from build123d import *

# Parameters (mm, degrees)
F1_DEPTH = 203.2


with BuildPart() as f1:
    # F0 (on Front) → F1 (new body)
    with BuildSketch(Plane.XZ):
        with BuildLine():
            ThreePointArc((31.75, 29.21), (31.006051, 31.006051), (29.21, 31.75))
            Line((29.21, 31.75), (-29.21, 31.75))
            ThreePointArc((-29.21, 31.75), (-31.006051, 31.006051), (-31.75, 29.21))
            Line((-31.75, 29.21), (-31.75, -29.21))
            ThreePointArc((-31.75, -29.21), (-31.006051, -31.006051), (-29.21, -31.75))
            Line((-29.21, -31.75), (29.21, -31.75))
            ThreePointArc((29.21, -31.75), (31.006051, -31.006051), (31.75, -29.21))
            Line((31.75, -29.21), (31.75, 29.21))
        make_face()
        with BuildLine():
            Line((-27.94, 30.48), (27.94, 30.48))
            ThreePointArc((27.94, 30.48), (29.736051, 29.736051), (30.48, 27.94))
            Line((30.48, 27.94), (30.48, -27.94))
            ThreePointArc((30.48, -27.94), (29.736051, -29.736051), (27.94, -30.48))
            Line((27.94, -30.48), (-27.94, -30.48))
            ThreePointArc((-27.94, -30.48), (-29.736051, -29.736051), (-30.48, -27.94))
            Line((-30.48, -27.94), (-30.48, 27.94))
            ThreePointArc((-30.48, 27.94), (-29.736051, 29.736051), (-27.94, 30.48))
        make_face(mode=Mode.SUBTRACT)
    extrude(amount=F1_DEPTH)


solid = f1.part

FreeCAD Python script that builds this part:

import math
import FreeCAD as App
import Part
import Sketcher
from FreeCAD import Vector
Q = App.Units.Quantity

doc = App.newDocument("Part")
params = doc.addObject("Spreadsheet::Sheet", "Params")
for row, (alias, value) in enumerate([
    ("sketch1_radius", "0.1 in"),
    ("sketch1_width", "2.3 in"),
    ("sketch1_width2", "2.2 in"),
    ("pad1_length", "8 in"),
], start=1):
    params.set(f"A{row}", alias)
    params.set(f"B{row}", "=" + value)
    params.setAlias(f"B{row}", alias)

body = doc.addObject("PartDesign::Body", "Body")

# Sketch on XZ plane
sketch1 = body.newObject("Sketcher::SketchObject", "Sketch")
sketch1.AttachmentSupport = (doc.getObject("XZ_Plane"), [""])
sketch1.MapMode = "FlatFace"
sketch1.addGeometry([
    Part.ArcOfCircle(Part.Circle(Vector(29.209999, 29.209999, 0), Vector(0, 0, 1), 2.540001), math.radians(0.000017), math.radians(89.999983)),  # 0
    Part.LineSegment(Vector(29.21, 31.75, 0), Vector(-29.21, 31.75, 0)),  # 1
    Part.ArcOfCircle(Part.Circle(Vector(-29.209999, 29.209999, 0), Vector(0, 0, 1), 2.540001), math.radians(90.000017), math.radians(179.999983)),  # 2
    Part.LineSegment(Vector(-31.75, 29.21, 0), Vector(-31.75, -29.21, 0)),  # 3
    Part.ArcOfCircle(Part.Circle(Vector(-29.209999, -29.209999, 0), Vector(0, 0, 1), 2.540001), math.radians(-179.999983), math.radians(-90.000017)),  # 4
    Part.LineSegment(Vector(-29.21, -31.75, 0), Vector(29.21, -31.75, 0)),  # 5
    Part.ArcOfCircle(Part.Circle(Vector(29.209999, -29.209999, 0), Vector(0, 0, 1), 2.540001), math.radians(-89.999983), math.radians(-0.000017)),  # 6
    Part.LineSegment(Vector(31.75, -29.21, 0), Vector(31.75, 29.21, 0)),  # 7
    Part.ArcOfCircle(Part.Circle(Vector(-27.939999, 27.939999, 0), Vector(0, 0, 1), 2.540001), math.radians(90.000017), math.radians(179.999983)),  # 8
    Part.LineSegment(Vector(-27.94, 30.48, 0), Vector(27.94, 30.48, 0)),  # 9
    Part.ArcOfCircle(Part.Circle(Vector(27.939999, 27.939999, 0), Vector(0, 0, 1), 2.540001), math.radians(0.000017), math.radians(89.999983)),  # 10
    Part.LineSegment(Vector(30.48, 27.94, 0), Vector(30.48, -27.94, 0)),  # 11
    Part.ArcOfCircle(Part.Circle(Vector(27.939999, -27.939999, 0), Vector(0, 0, 1), 2.540001), math.radians(-89.999983), math.radians(-0.000017)),  # 12
    Part.LineSegment(Vector(27.94, -30.48, 0), Vector(-27.94, -30.48, 0)),  # 13
    Part.ArcOfCircle(Part.Circle(Vector(-27.939999, -27.939999, 0), Vector(0, 0, 1), 2.540001), math.radians(-179.999983), math.radians(-90.000017)),  # 14
    Part.LineSegment(Vector(-30.48, -27.94, 0), Vector(-30.48, 27.94, 0)),  # 15
], False)
sketch1.addConstraint([
    Sketcher.Constraint("Tangent", 0, 2, 1, 1),
    Sketcher.Constraint("Tangent", 1, 2, 2, 1),
    Sketcher.Constraint("Tangent", 2, 2, 3, 1),
    Sketcher.Constraint("Tangent", 3, 2, 4, 1),
    Sketcher.Constraint("Tangent", 4, 2, 5, 1),
    Sketcher.Constraint("Tangent", 5, 2, 6, 1),
    Sketcher.Constraint("Tangent", 6, 2, 7, 1),
    Sketcher.Constraint("Tangent", 7, 2, 0, 1),
    Sketcher.Constraint("Tangent", 8, 1, 9, 1),
    Sketcher.Constraint("Tangent", 9, 2, 10, 2),
    Sketcher.Constraint("Tangent", 10, 1, 11, 1),
    Sketcher.Constraint("Tangent", 11, 2, 12, 2),
    Sketcher.Constraint("Tangent", 12, 1, 13, 1),
    Sketcher.Constraint("Tangent", 13, 2, 14, 2),
    Sketcher.Constraint("Tangent", 14, 1, 15, 1),
    Sketcher.Constraint("Tangent", 15, 2, 8, 2),
    Sketcher.Constraint("Horizontal", 1),
    Sketcher.Constraint("Vertical", 3),
    Sketcher.Constraint("Horizontal", 5),
    Sketcher.Constraint("Vertical", 7),
    Sketcher.Constraint("Horizontal", 9),
    Sketcher.Constraint("Vertical", 11),
    Sketcher.Constraint("Horizontal", 13),
    Sketcher.Constraint("Vertical", 15),
    Sketcher.Constraint("Equal", 0, 2),
    Sketcher.Constraint("Equal", 2, 4),
    Sketcher.Constraint("Equal", 4, 6),
    Sketcher.Constraint("Equal", 6, 8),
    Sketcher.Constraint("Equal", 8, 10),
    Sketcher.Constraint("Equal", 10, 12),
    Sketcher.Constraint("Equal", 12, 14),
    Sketcher.Constraint("Symmetric", 0, 3, 4, 3, -1, 1),
    Sketcher.Constraint("Symmetric", 8, 3, 12, 3, -1, 1),
    Sketcher.Constraint("Equal", 5, 3),
    Sketcher.Constraint("Equal", 13, 11),
    Sketcher.Constraint("Radius", 0, Q("0.1 in")),
    Sketcher.Constraint("DistanceX", 1, 2, 1, 1, Q("2.3 in")),
    Sketcher.Constraint("DistanceX", 9, 1, 9, 2, Q("2.2 in")),
])
sketch1.setExpression("Constraints[35]", "Params.sketch1_radius")
sketch1.setExpression("Constraints[36]", "Params.sketch1_width")
sketch1.setExpression("Constraints[37]", "Params.sketch1_width2")
pad1 = body.newObject("PartDesign::Pad", "Pad")
pad1.Profile = sketch1
pad1.setExpression("Length", "Params.pad1_length")

doc.recompute()
